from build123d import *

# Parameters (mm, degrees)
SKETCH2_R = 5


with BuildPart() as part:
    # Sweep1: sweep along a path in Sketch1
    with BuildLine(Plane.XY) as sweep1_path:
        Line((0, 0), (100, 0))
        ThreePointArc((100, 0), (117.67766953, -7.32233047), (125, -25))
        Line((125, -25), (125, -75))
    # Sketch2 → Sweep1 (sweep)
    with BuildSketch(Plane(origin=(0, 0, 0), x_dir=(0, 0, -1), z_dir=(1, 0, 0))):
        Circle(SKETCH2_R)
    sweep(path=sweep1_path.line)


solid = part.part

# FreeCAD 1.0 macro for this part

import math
import FreeCAD as App
import Part
import Sketcher

doc = App.newDocument("Part")
params = doc.addObject("Spreadsheet::Sheet", "Params")
for row, (alias, value) in enumerate([
    ("sketch1_diameter", "10 mm"),
    ("sketch2_radius", "25 mm"),
    ("sketch2_width", "100 mm"),
    ("sketch2_height", "50 mm"),
], start=1):
    params.set(f"A{row}", alias)
    params.set(f"B{row}", "=" + value)
    params.setAlias(f"B{row}", alias)

body = doc.addObject("PartDesign::Body", "Body")

sketch1 = body.newObject("Sketcher::SketchObject", "Sketch")
sketch1.AttachmentSupport = (doc.getObject("YZ_Plane"), [""])
sketch1.MapMode = "FlatFace"
sketch1.addGeometry(Part.Circle(App.Vector(0, 0, 0), App.Vector(0, 0, 1), 5), False)
sketch1.addConstraint(Sketcher.Constraint("Coincident", 0, 3, -1, 1))
sketch1.addConstraint(Sketcher.Constraint("Diameter", 0, 10.0))
sketch1.setExpression("Constraints[1]", "Params.sketch1_diameter")

sketch2 = body.newObject("Sketcher::SketchObject", "Sketch001")
sketch2.AttachmentSupport = (doc.getObject("XY_Plane"), [""])
sketch2.MapMode = "FlatFace"
sketch2.addGeometry(Part.LineSegment(App.Vector(0, 0, 0), App.Vector(100, 0, 0)), False)
sketch2.addGeometry(Part.ArcOfCircle(Part.Circle(App.Vector(100, -25, 0), App.Vector(0, 0, 1), 25), math.radians(0), math.radians(90)), False)
sketch2.addGeometry(Part.LineSegment(App.Vector(125, -25, 0), App.Vector(125, -75, 0)), False)
sketch2.addConstraint(Sketcher.Constraint("Tangent", 0, 2, 1, 2))
sketch2.addConstraint(Sketcher.Constraint("Tangent", 1, 1, 2, 1))
sketch2.addConstraint(Sketcher.Constraint("Horizontal", 0))
sketch2.addConstraint(Sketcher.Constraint("Vertical", 2))
sketch2.addConstraint(Sketcher.Constraint("Coincident", 0, 1, -1, 1))
sketch2.addConstraint(Sketcher.Constraint("Radius", 1, 25.0))
sketch2.addConstraint(Sketcher.Constraint("DistanceX", 0, 1, 0, 2, 100.0))
sketch2.addConstraint(Sketcher.Constraint("DistanceY", 2, 2, 2, 1, 50.0))
sketch2.setExpression("Constraints[5]", "Params.sketch2_radius")
sketch2.setExpression("Constraints[6]", "Params.sketch2_width")
sketch2.setExpression("Constraints[7]", "Params.sketch2_height")
doc.recompute()

additivepipe = body.newObject("PartDesign::AdditivePipe", "AdditivePipe")
additivepipe.Profile = sketch1
additivepipe.Spine = (sketch2, ["Edge1", "Edge2", "Edge3"])

doc.recompute()
